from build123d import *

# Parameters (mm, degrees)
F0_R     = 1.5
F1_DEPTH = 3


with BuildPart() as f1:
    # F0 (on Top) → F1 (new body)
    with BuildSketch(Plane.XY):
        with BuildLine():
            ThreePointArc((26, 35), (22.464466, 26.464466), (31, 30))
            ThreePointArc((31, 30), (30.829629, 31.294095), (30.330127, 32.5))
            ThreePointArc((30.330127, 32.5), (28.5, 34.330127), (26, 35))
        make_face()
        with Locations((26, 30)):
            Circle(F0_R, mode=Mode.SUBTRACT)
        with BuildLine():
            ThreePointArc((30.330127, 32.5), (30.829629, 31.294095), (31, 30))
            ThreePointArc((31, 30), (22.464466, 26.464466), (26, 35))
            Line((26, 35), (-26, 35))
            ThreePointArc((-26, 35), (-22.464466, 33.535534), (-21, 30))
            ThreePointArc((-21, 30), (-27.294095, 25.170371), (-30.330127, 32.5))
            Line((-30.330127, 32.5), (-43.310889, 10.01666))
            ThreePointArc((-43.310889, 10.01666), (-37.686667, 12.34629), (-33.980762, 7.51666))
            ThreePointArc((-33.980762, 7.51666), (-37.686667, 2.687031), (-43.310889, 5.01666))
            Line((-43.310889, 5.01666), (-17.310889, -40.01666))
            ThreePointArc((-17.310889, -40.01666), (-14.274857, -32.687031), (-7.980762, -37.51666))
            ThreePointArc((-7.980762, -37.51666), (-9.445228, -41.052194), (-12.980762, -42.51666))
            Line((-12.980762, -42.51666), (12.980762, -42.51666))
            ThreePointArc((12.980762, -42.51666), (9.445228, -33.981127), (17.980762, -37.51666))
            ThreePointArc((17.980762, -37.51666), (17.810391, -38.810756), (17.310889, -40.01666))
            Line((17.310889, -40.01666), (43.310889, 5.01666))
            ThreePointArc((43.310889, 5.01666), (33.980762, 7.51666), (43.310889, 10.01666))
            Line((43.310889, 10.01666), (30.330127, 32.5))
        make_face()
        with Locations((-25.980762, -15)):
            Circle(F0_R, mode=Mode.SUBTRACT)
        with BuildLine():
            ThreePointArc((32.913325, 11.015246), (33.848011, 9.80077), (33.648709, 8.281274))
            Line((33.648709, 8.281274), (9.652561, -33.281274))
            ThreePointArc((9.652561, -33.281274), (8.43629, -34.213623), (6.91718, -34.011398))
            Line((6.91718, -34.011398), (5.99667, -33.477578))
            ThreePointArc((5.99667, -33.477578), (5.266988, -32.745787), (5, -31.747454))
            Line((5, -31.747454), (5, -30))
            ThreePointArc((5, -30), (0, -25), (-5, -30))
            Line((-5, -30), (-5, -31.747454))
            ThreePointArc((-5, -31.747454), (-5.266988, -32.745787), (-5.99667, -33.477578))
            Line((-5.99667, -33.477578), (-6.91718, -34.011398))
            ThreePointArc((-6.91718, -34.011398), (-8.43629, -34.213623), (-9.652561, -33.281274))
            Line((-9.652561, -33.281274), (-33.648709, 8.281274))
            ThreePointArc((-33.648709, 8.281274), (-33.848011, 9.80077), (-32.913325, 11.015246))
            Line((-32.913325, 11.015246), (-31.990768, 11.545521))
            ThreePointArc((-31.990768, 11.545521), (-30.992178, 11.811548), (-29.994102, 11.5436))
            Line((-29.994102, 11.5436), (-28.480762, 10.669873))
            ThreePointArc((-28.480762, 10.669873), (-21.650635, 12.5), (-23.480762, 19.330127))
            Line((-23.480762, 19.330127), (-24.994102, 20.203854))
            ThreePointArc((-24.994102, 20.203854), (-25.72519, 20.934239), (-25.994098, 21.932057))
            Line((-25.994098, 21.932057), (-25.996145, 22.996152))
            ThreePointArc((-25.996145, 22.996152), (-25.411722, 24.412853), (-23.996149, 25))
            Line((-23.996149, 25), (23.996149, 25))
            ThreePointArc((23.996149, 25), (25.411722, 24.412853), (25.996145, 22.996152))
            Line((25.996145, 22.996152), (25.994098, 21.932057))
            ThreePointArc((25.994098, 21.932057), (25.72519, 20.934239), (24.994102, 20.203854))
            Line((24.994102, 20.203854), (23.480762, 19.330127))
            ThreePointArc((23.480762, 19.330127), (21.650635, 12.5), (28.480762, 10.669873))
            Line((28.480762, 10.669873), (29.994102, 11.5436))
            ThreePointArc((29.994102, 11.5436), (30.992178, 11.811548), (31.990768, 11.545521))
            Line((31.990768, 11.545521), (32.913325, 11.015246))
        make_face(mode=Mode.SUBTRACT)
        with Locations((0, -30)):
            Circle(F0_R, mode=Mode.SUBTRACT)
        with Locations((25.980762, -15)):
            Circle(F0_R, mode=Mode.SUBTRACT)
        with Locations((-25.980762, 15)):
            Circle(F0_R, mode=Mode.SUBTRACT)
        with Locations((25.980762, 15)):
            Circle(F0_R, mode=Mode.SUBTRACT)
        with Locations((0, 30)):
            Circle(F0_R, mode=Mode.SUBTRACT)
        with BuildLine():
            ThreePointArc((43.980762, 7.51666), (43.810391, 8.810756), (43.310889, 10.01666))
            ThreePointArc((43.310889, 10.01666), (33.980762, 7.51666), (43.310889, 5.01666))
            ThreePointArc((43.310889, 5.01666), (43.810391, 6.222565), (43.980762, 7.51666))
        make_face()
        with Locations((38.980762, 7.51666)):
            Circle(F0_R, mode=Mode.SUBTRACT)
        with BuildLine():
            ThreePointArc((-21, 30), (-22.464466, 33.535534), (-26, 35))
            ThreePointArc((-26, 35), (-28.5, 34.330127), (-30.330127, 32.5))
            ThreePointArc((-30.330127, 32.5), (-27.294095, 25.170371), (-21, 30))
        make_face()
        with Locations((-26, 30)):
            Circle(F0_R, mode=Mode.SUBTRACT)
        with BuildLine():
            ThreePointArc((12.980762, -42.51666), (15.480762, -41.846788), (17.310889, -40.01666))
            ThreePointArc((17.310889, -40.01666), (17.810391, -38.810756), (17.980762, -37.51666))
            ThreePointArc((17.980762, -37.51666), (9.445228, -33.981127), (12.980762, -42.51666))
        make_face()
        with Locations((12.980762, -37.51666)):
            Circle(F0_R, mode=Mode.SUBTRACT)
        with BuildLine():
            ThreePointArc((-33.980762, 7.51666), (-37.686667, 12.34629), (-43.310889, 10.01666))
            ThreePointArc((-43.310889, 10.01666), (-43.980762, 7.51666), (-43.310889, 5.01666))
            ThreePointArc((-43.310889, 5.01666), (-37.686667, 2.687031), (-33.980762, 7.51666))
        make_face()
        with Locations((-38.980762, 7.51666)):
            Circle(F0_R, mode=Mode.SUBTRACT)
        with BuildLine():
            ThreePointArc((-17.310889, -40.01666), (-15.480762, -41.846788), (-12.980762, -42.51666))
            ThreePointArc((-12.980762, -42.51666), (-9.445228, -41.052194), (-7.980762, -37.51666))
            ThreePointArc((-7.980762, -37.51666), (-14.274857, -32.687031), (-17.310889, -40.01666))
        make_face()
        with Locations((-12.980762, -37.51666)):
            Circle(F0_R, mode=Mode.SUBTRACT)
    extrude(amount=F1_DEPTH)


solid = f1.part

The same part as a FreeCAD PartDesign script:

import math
import FreeCAD as App
import Part
import Sketcher
from FreeCAD import Vector
Q = App.Units.Quantity

doc = App.newDocument("Part")
params = doc.addObject("Spreadsheet::Sheet", "Params")
for row, (alias, value) in enumerate([
    ("sketch1_diameter", "3 mm"),
    ("sketch1_diameter2", "3 mm"),
    ("sketch1_diameter3", "3 mm"),
    ("sketch1_diameter4", "3 mm"),
    ("sketch1_diameter5", "3 mm"),
    ("pad1_length", "3 mm"),
], start=1):
    params.set(f"A{row}", alias)
    params.set(f"B{row}", "=" + value)
    params.setAlias(f"B{row}", alias)

body = doc.addObject("PartDesign::Body", "Body")

sketch1 = body.newObject("Sketcher::SketchObject", "Sketch")
sketch1.AttachmentSupport = (doc.getObject("XY_Plane"), [""])
sketch1.MapMode = "FlatFace"
sketch1.addGeometry([
    Part.ArcOfCircle(Part.Circle(Vector(26, 30, 0), Vector(0, 0, 1), 5), math.radians(30), math.radians(89.999999)),
    Part.LineSegment(Vector(26, 35, 0), Vector(-26, 35, 0)),
    Part.ArcOfCircle(Part.Circle(Vector(-26, 30, 0), Vector(0, 0, 1), 5), math.radians(90.000001), math.radians(150)),
    Part.LineSegment(Vector(-30.330127, 32.5, 0), Vector(-43.310889, 10.01666, 0)),
    Part.ArcOfCircle(Part.Circle(Vector(-38.980762, 7.51666, 0), Vector(0, 0, 1), 5), math.radians(149.999999), math.radians(210.000001)),
    Part.LineSegment(Vector(-43.310889, 5.01666, 0), Vector(-17.310889, -40.01666, 0)),
    Part.ArcOfCircle(Part.Circle(Vector(-12.980765, -37.516666, 0), Vector(0, 0, 1), 4.999994), math.radians(-150.000037), math.radians(-89.999963)),
    Part.LineSegment(Vector(-12.980762, -42.51666, 0), Vector(12.980762, -42.51666, 0)),
    Part.ArcOfCircle(Part.Circle(Vector(12.980765, -37.516666, 0), Vector(0, 0, 1), 4.999994), math.radians(-90.000037), math.radians(-29.999963)),
    Part.LineSegment(Vector(17.310889, -40.01666, 0), Vector(43.310889, 5.01666, 0)),
    Part.ArcOfCircle(Part.Circle(Vector(38.980757, 7.516661, 0), Vector(0, 0, 1), 5.000005), math.radians(-29.999985), math.radians(-0.000016)),
    Part.ArcOfCircle(Part.Circle(Vector(38.980764, 7.516661, 0), Vector(0, 0, 1), 4.999998), math.radians(-0.000007), math.radians(30.000008)),
    Part.LineSegment(Vector(43.310889, 10.01666, 0), Vector(30.330127, 32.5, 0)),
    Part.Circle(Vector(-12.980762, -37.51666, 0), Vector(0, 0, 1), 1.5),
    Part.Circle(Vector(-25.980762, -15, 0), Vector(0, 0, 1), 1.5),
    Part.Circle(Vector(12.980762, -37.51666, 0), Vector(0, 0, 1), 1.5),
    Part.Circle(Vector(0, -30, 0), Vector(0, 0, 1), 1.5),
    Part.LineSegment(Vector(31.990768, 11.545521, 0), Vector(32.913325, 11.015246, 0)),
    Part.ArcOfCircle(Part.Circle(Vector(31.916656, 9.281274, 0), Vector(0, 0, 1), 2.000002), math.radians(-29.999978), math.radians(60.110167)),
    Part.LineSegment(Vector(33.648709, 8.281274, 0), Vector(9.652561, -33.281274, 0)),
    Part.ArcOfCircle(Part.Circle(Vector(7.92051, -32.281275, 0), Vector(0, 0, 1), 1.999999), math.radians(-120.11024), math.radians(-29.999977)),
    Part.LineSegment(Vector(6.91718, -34.011398, 0), Vector(5.99667, -33.477578, 0)),
    Part.ArcOfCircle(Part.Circle(Vector(7.000001, -31.747453, 0), Vector(0, 0, 1), 2.000001), math.radians(-179.999982), math.radians(-120.110236)),
    Part.LineSegment(Vector(5, -31.747454, 0), Vector(5, -30, 0)),
    Part.ArcOfCircle(Part.Circle(Vector(0, -30, 0), Vector(0, 0, 1), 5), math.radians(0), math.radians(180)),
    Part.LineSegment(Vector(-5, -30, 0), Vector(-5, -31.747454, 0)),
    Part.ArcOfCircle(Part.Circle(Vector(-7.000001, -31.747453, 0), Vector(0, 0, 1), 2.000001), math.radians(-59.889764), math.radians(-0.000018)),
    Part.LineSegment(Vector(-5.99667, -33.477578, 0), Vector(-6.91718, -34.011398, 0)),
    Part.ArcOfCircle(Part.Circle(Vector(-7.92051, -32.281275, 0), Vector(0, 0, 1), 1.999999), math.radians(-150.000023), math.radians(-59.88976)),
    Part.LineSegment(Vector(-9.652561, -33.281274, 0), Vector(-33.648709, 8.281274, 0)),
    Part.ArcOfCircle(Part.Circle(Vector(-31.916656, 9.281274, 0), Vector(0, 0, 1), 2.000002), math.radians(119.889833), math.radians(209.999978)),
    Part.LineSegment(Vector(-32.913325, 11.015246, 0), Vector(-31.990768, 11.545521, 0)),
    Part.ArcOfCircle(Part.Circle(Vector(-30.994102, 9.811546, 0), Vector(0, 0, 1), 2.000003), math.radians(60.000038), math.radians(119.889713)),
    Part.LineSegment(Vector(-29.994102, 11.5436, 0), Vector(-28.480762, 10.669873, 0)),
    Part.ArcOfCircle(Part.Circle(Vector(-25.980762, 15, 0), Vector(0, 0, 1), 5), math.radians(-120), math.radians(60)),
    Part.LineSegment(Vector(-23.480762, 19.330127, 0), Vector(-24.994102, 20.203854, 0)),
    Part.ArcOfCircle(Part.Circle(Vector(-23.994103, 21.935904, 0), Vector(0, 0, 1), 1.999999), math.radians(-179.889793), math.radians(-119.99999)),
    Part.LineSegment(Vector(-25.994098, 21.932057, 0), Vector(-25.996145, 22.996152, 0)),
    Part.ArcOfCircle(Part.Circle(Vector(-23.99615, 23.000001, 0), Vector(0, 0, 1), 1.999999), math.radians(89.999985), math.radians(180.110261)),
    Part.LineSegment(Vector(-23.996149, 25, 0), Vector(23.996149, 25, 0)),
    Part.ArcOfCircle(Part.Circle(Vector(23.99615, 23.000001, 0), Vector(0, 0, 1), 1.999999), math.radians(-0.110261), math.radians(90.000015)),
    Part.LineSegment(Vector(25.996145, 22.996152, 0), Vector(25.994098, 21.932057, 0)),
    Part.ArcOfCircle(Part.Circle(Vector(23.994103, 21.935904, 0), Vector(0, 0, 1), 1.999999), math.radians(-60.00001), math.radians(-0.110207)),
    Part.LineSegment(Vector(24.994102, 20.203854, 0), Vector(23.480762, 19.330127, 0)),
    Part.ArcOfCircle(Part.Circle(Vector(25.980762, 15, 0), Vector(0, 0, 1), 5), math.radians(120), math.radians(300)),
    Part.LineSegment(Vector(28.480762, 10.669873, 0), Vector(29.994102, 11.5436, 0)),
    Part.ArcOfCircle(Part.Circle(Vector(30.994102, 9.811546, 0), Vector(0, 0, 1), 2.000003), math.radians(60.110287), math.radians(119.999962)),
    Part.Circle(Vector(25.980762, -15, 0), Vector(0, 0, 1), 1.5),
    Part.Circle(Vector(-38.980762, 7.51666, 0), Vector(0, 0, 1), 1.5),
    Part.Circle(Vector(-25.980762, 15, 0), Vector(0, 0, 1), 1.5),
    Part.Circle(Vector(-26, 30, 0), Vector(0, 0, 1), 1.5),
    Part.Circle(Vector(38.980762, 7.51666, 0), Vector(0, 0, 1), 1.5),
    Part.Circle(Vector(0, 30, 0), Vector(0, 0, 1), 1.5),
    Part.Circle(Vector(25.980762, 15, 0), Vector(0, 0, 1), 1.5),
    Part.Circle(Vector(26, 30, 0), Vector(0, 0, 1), 1.5),
], False)
sketch1.addConstraint([
    Sketcher.Constraint("Coincident", 0, 2, 1, 1),
    Sketcher.Constraint("Coincident", 1, 2, 2, 1),
    Sketcher.Constraint("Coincident", 2, 2, 3, 1),
    Sketcher.Constraint("Coincident", 3, 2, 4, 1),
    Sketcher.Constraint("Coincident", 4, 2, 5, 1),
    Sketcher.Constraint("Coincident", 5, 2, 6, 1),
    Sketcher.Constraint("Coincident", 6, 2, 7, 1),
    Sketcher.Constraint("Coincident", 7, 2, 8, 1),
    Sketcher.Constraint("Coincident", 8, 2, 9, 1),
    Sketcher.Constraint("Coincident", 9, 2, 10, 1),
    Sketcher.Constraint("Coincident", 10, 2, 11, 1),
    Sketcher.Constraint("Coincident", 11, 2, 12, 1),
    Sketcher.Constraint("Coincident", 12, 2, 0, 1),
    Sketcher.Constraint("Coincident", 17, 2, 18, 2),
    Sketcher.Constraint("Coincident", 18, 1, 19, 1),
    Sketcher.Constraint("Coincident", 19, 2, 20, 2),
    Sketcher.Constraint("Coincident", 20, 1, 21, 1),
    Sketcher.Constraint("Coincident", 21, 2, 22, 2),
    Sketcher.Constraint("Coincident", 22, 1, 23, 1),
    Sketcher.Constraint("Coincident", 23, 2, 24, 1),
    Sketcher.Constraint("Coincident", 24, 2, 25, 1),
    Sketcher.Constraint("Coincident", 25, 2, 26, 2),
    Sketcher.Constraint("Coincident", 26, 1, 27, 1),
    Sketcher.Constraint("Coincident", 27, 2, 28, 2),
    Sketcher.Constraint("Coincident", 28, 1, 29, 1),
    Sketcher.Constraint("Coincident", 29, 2, 30, 2),
    Sketcher.Constraint("Coincident", 30, 1, 31, 1),
    Sketcher.Constraint("Coincident", 31, 2, 32, 2),
    Sketcher.Constraint("Coincident", 32, 1, 33, 1),
    Sketcher.Constraint("Coincident", 33, 2, 34, 1),
    Sketcher.Constraint("Coincident", 34, 2, 35, 1),
    Sketcher.Constraint("Coincident", 35, 2, 36, 2),
    Sketcher.Constraint("Coincident", 36, 1, 37, 1),
    Sketcher.Constraint("Coincident", 37, 2, 38, 2),
    Sketcher.Constraint("Coincident", 38, 1, 39, 1),
    Sketcher.Constraint("Coincident", 39, 2, 40, 2),
    Sketcher.Constraint("Coincident", 40, 1, 41, 1),
    Sketcher.Constraint("Coincident", 41, 2, 42, 2),
    Sketcher.Constraint("Coincident", 42, 1, 43, 1),
    Sketcher.Constraint("Coincident", 43, 2, 44, 1),
    Sketcher.Constraint("Coincident", 44, 2, 45, 1),
    Sketcher.Constraint("Coincident", 45, 2, 46, 2),
    Sketcher.Constraint("Coincident", 46, 1, 17, 1),
    Sketcher.Constraint("Horizontal", 1),
    Sketcher.Constraint("Horizontal", 7),
    Sketcher.Constraint("Vertical", 23),
    Sketcher.Constraint("Vertical", 25),
    Sketcher.Constraint("Horizontal", 39),
    Sketcher.Constraint("Coincident", 11, 3, 10, 3),
    Sketcher.Constraint("Coincident", 13, 3, 6, 3),
    Sketcher.Constraint("Coincident", 15, 3, 8, 3),
    Sketcher.Constraint("Coincident", 24, 3, 16, 3),
    Sketcher.Constraint("Coincident", 48, 3, 4, 3),
    Sketcher.Constraint("Coincident", 49, 3, 34, 3),
    Sketcher.Constraint("Coincident", 50, 3, 2, 3),
    Sketcher.Constraint("Coincident", 51, 3, 10, 3),
    Sketcher.Constraint("Coincident", 53, 3, 44, 3),
    Sketcher.Constraint("Coincident", 54, 3, 0, 3),
    Sketcher.Constraint("PointOnObject", 16, 3, -2),
    Sketcher.Constraint("PointOnObject", 52, 3, -2),
    Sketcher.Constraint("Diameter", 13, Q("3 mm")),
    Sketcher.Constraint("Diameter", 14, Q("3 mm")),
    Sketcher.Constraint("Diameter", 15, Q("3 mm")),
    Sketcher.Constraint("Diameter", 16, Q("3 mm")),
    Sketcher.Constraint("Diameter", 47, Q("3 mm")),
    Sketcher.Constraint("Diameter", 48, Q("3 mm")),
    Sketcher.Constraint("Diameter", 49, Q("3 mm")),
    Sketcher.Constraint("Diameter", 50, Q("3 mm")),
    Sketcher.Constraint("Diameter", 51, Q("3 mm")),
    Sketcher.Constraint("Diameter", 52, Q("3 mm")),
    Sketcher.Constraint("Diameter", 53, Q("3 mm")),
    Sketcher.Constraint("Diameter", 54, Q("3 mm")),
    Sketcher.Constraint("Radius", 0, Q("5 mm")),
    Sketcher.Constraint("Radius", 2, Q("5 mm")),
    Sketcher.Constraint("Radius", 4, Q("5 mm")),
    Sketcher.Constraint("Radius", 18, Q("2.000002 mm")),
    Sketcher.Constraint("Radius", 20, Q("1.999999 mm")),
    Sketcher.Constraint("Radius", 22, Q("2.000001 mm")),
    Sketcher.Constraint("Radius", 24, Q("5 mm")),
    Sketcher.Constraint("Radius", 26, Q("2.000001 mm")),
    Sketcher.Constraint("Radius", 28, Q("1.999999 mm")),
    Sketcher.Constraint("Radius", 30, Q("2.000002 mm")),
    Sketcher.Constraint("Radius", 34, Q("5 mm")),
    Sketcher.Constraint("Radius", 36, Q("1.999999 mm")),
    Sketcher.Constraint("Radius", 38, Q("1.999999 mm")),
    Sketcher.Constraint("Radius", 40, Q("1.999999 mm")),
    Sketcher.Constraint("Radius", 42, Q("1.999999 mm")),
    Sketcher.Constraint("Radius", 44, Q("5 mm")),
    Sketcher.Constraint("DistanceX", 1, 2, 1, 1, Q("52 mm")),
    Sketcher.Constraint("Distance", 5, Q("51.999999 mm")),
    Sketcher.Constraint("Distance", 9, Q("51.999999 mm")),
    Sketcher.Constraint("DistanceX", -1, 1, 0, 3, Q("26 mm")),
    Sketcher.Constraint("DistanceY", -1, 1, 0, 3, Q("30 mm")),
    Sketcher.Constraint("DistanceX", 2, 3, -1, 1, Q("26 mm")),
    Sketcher.Constraint("DistanceY", 14, 3, -1, 1, Q("15 mm")),
    Sketcher.Constraint("DistanceY", 16, 3, -1, 1, Q("30 mm")),
    Sketcher.Constraint("DistanceY", -1, 1, 34, 3, Q("15 mm")),
    Sketcher.Constraint("DistanceY", -1, 1, 38, 3, Q("23.000001 mm")),
    Sketcher.Constraint("DistanceY", -1, 1, 44, 3, Q("15 mm")),
    Sketcher.Constraint("DistanceY", 47, 3, -1, 1, Q("15 mm")),
    Sketcher.Constraint("DistanceY", -1, 1, 52, 3, Q("30 mm")),
    Sketcher.Constraint("DistanceX", -1, 1, 0, 2, Q("26 mm")),
    Sketcher.Constraint("DistanceY", 23, 2, -1, 1, Q("30 mm")),
    Sketcher.Constraint("DistanceY", 24, 2, -1, 1, Q("30 mm")),
    Sketcher.Constraint("DistanceY", -1, 1, 2, 2, Q("32.5 mm")),
    Sketcher.Constraint("DistanceY", -1, 1, 12, 2, Q("32.5 mm")),
    Sketcher.Constraint("Radius", 6, Q("4.999994 mm")),
    Sketcher.Constraint("Radius", 8, Q("4.999994 mm")),
    Sketcher.Constraint("Radius", 10, Q("5.000005 mm")),
    Sketcher.Constraint("Radius", 32, Q("2.000003 mm")),
    Sketcher.Constraint("Radius", 46, Q("2.000003 mm")),
    Sketcher.Constraint("DistanceY", 20, 1, -1, 1, Q("34.011398 mm")),
    Sketcher.Constraint("DistanceY", -1, 1, 32, 1, Q("11.5436 mm")),
    Sketcher.Constraint("DistanceX", -1, 1, 41, 2, Q("25.994098 mm")),
    Sketcher.Constraint("DistanceX", -1, 1, 42, 1, Q("24.994102 mm")),
    Sketcher.Constraint("DistanceY", -1, 1, 45, 2, Q("11.5436 mm")),
    Sketcher.Constraint("DistanceX", 7, 1, 7, 2, Q("25.961524 mm")),
    Sketcher.Constraint("DistanceX", 39, 1, 39, 2, Q("47.992298 mm")),
    Sketcher.Constraint("DistanceY", 23, 1, 23, 2, Q("1.747454 mm")),
    Sketcher.Constraint("DistanceY", 25, 2, 25, 1, Q("1.747454 mm")),
    Sketcher.Constraint("DistanceY", -1, 1, 4, 3, Q("7.51666 mm")),
    Sketcher.Constraint("DistanceY", -1, 1, 10, 3, Q("7.516661 mm")),
    Sketcher.Constraint("DistanceY", 13, 3, -1, 1, Q("37.51666 mm")),
    Sketcher.Constraint("DistanceX", 14, 3, -1, 1, Q("25.980762 mm")),
    Sketcher.Constraint("DistanceX", -1, 1, 20, 3, Q("7.92051 mm")),
    Sketcher.Constraint("DistanceX", 28, 3, -1, 1, Q("7.92051 mm")),
    Sketcher.Constraint("DistanceX", 34, 3, -1, 1, Q("25.980762 mm")),
    Sketcher.Constraint("DistanceX", 38, 3, -1, 1, Q("23.99615 mm")),
    Sketcher.Constraint("DistanceX", -1, 1, 40, 3, Q("23.99615 mm")),
    Sketcher.Constraint("DistanceX", -1, 1, 44, 3, Q("25.980762 mm")),
    Sketcher.Constraint("DistanceX", -1, 1, 47, 3, Q("25.980762 mm")),
    Sketcher.Constraint("DistanceX", 3, 2, -1, 1, Q("43.310889 mm")),
    Sketcher.Constraint("DistanceY", -1, 1, 3, 2, Q("10.01666 mm")),
    Sketcher.Constraint("DistanceX", 4, 2, -1, 1, Q("43.310889 mm")),
    Sketcher.Constraint("DistanceX", 5, 2, -1, 1, Q("17.310889 mm")),
    Sketcher.Constraint("DistanceX", -1, 1, 8, 2, Q("17.310889 mm")),
    Sketcher.Constraint("DistanceY", 8, 2, -1, 1, Q("40.01666 mm")),
    Sketcher.Constraint("DistanceX", -1, 1, 9, 2, Q("43.310889 mm")),
    Sketcher.Constraint("DistanceY", -1, 1, 10, 2, Q("7.51666 mm")),
    Sketcher.Constraint("DistanceX", -1, 1, 11, 2, Q("43.310889 mm")),
    Sketcher.Constraint("DistanceX", -1, 1, 18, 1, Q("33.648709 mm")),
    Sketcher.Constraint("DistanceX", -1, 1, 19, 2, Q("9.652561 mm")),
    Sketcher.Constraint("DistanceX", -1, 1, 20, 1, Q("6.91718 mm")),
    Sketcher.Constraint("DistanceX", -1, 1, 21, 2, Q("5.99667 mm")),
    Sketcher.Constraint("DistanceX", 26, 1, -1, 1, Q("5.99667 mm")),
    Sketcher.Constraint("DistanceY", 26, 1, -1, 1, Q("33.477578 mm")),
    Sketcher.Constraint("DistanceX", 27, 2, -1, 1, Q("6.91718 mm")),
    Sketcher.Constraint("DistanceX", 28, 1, -1, 1, Q("9.652561 mm")),
    Sketcher.Constraint("DistanceX", 29, 2, -1, 1, Q("33.648709 mm")),
    Sketcher.Constraint("DistanceY", -1, 1, 31, 2, Q("11.545521 mm")),
    Sketcher.Constraint("DistanceX", 33, 2, -1, 1, Q("28.480762 mm")),
    Sketcher.Constraint("DistanceX", 34, 2, -1, 1, Q("23.480762 mm")),
    Sketcher.Constraint("DistanceY", -1, 1, 37, 2, Q("22.996152 mm")),
    Sketcher.Constraint("DistanceX", 38, 1, -1, 1, Q("23.996149 mm")),
    Sketcher.Constraint("DistanceY", -1, 1, 40, 1, Q("22.996152 mm")),
    Sketcher.Constraint("DistanceX", -1, 1, 43, 2, Q("23.480762 mm")),
    Sketcher.Constraint("DistanceY", -1, 1, 46, 1, Q("11.545521 mm")),
    Sketcher.Constraint("Distance", 17, Q("1.064097 mm")),
    Sketcher.Constraint("Distance", 19, Q("47.992296 mm")),
    Sketcher.Constraint("Distance", 21, Q("1.064097 mm")),
    Sketcher.Constraint("Distance", 27, Q("1.064097 mm")),
    Sketcher.Constraint("Distance", 29, Q("47.992296 mm")),
    Sketcher.Constraint("Distance", 31, Q("1.064097 mm")),
    Sketcher.Constraint("Distance", 33, Q("1.747454 mm")),
    Sketcher.Constraint("Distance", 35, Q("1.747454 mm")),
    Sketcher.Constraint("Distance", 37, Q("1.064097 mm")),
    Sketcher.Constraint("Distance", 41, Q("1.064097 mm")),
    Sketcher.Constraint("Distance", 43, Q("1.747454 mm")),
    Sketcher.Constraint("Distance", 45, Q("1.747454 mm")),
    Sketcher.Constraint("DistanceX", -1, 1, 18, 3, Q("31.916656 mm")),
    Sketcher.Constraint("DistanceX", 30, 3, -1, 1, Q("31.916656 mm")),
    Sketcher.Constraint("DistanceX", 32, 3, -1, 1, Q("30.994102 mm")),
    Sketcher.Constraint("DistanceX", 36, 3, -1, 1, Q("23.994103 mm")),
    Sketcher.Constraint("DistanceY", -1, 1, 36, 3, Q("21.935904 mm")),
    Sketcher.Constraint("DistanceX", -1, 1, 46, 3, Q("30.994102 mm")),
    Sketcher.Constraint("DistanceY", -1, 1, 46, 3, Q("9.811546 mm")),
    Sketcher.Constraint("DistanceX", 6, 2, -1, 1, Q("12.980762 mm")),
])
sketch1.setExpression("Constraints[60]", "Params.sketch1_diameter")
sketch1.setExpression("Constraints[61]", "Params.sketch1_diameter2")
sketch1.setExpression("Constraints[62]", "Params.sketch1_diameter3")
sketch1.setExpression("Constraints[63]", "Params.sketch1_diameter4")
sketch1.setExpression("Constraints[64]", "Params.sketch1_diameter5")
pad1 = body.newObject("PartDesign::Pad", "Pad")
pad1.Profile = sketch1
pad1.setExpression("Length", "Params.pad1_length")

doc.recompute()
